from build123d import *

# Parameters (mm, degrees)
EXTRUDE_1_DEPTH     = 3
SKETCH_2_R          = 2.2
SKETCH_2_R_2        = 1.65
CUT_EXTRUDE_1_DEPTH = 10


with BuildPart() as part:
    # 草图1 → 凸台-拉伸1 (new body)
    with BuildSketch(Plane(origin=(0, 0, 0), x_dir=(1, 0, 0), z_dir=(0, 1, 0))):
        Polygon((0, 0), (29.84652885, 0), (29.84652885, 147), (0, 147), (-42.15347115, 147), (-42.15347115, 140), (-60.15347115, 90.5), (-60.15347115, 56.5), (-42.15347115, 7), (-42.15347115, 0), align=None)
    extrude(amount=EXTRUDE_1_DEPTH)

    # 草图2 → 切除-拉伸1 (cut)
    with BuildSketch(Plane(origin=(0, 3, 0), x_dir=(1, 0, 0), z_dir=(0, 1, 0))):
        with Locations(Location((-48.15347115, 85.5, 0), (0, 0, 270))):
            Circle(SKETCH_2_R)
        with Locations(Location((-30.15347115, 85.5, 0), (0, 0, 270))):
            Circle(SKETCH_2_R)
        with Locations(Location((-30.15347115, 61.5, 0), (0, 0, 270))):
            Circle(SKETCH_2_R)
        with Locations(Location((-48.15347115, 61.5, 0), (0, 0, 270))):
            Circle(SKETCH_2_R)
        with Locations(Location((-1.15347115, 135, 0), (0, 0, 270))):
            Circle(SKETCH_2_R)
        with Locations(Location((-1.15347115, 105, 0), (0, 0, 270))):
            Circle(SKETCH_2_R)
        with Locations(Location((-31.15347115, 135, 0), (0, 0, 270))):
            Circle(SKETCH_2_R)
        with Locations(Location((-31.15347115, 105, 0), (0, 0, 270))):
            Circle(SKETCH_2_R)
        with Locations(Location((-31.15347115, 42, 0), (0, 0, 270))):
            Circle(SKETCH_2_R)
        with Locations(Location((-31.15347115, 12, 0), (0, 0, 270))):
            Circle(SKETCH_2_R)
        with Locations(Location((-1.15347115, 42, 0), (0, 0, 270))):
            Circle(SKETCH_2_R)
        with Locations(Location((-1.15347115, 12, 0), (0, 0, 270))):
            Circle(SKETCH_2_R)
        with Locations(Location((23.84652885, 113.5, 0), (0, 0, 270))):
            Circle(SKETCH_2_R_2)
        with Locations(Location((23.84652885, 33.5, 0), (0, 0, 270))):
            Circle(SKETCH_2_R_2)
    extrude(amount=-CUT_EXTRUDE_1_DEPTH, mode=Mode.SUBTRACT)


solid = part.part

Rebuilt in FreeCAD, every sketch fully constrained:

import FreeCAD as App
import Part
import Sketcher
from FreeCAD import Vector


def add_polygon(sketch, points):
    """Adds a closed chain of lines whose ends are joined by coincident constraints."""
    first, n = sketch.GeometryCount, len(points)
    for a, b in zip(points, points[1:] + points[:1]):
        sketch.addGeometry(Part.LineSegment(App.Vector(*a, 0), App.Vector(*b, 0)), False)
    for i in range(n):
        sketch.addConstraint(Sketcher.Constraint("Coincident", first + i, 2, first + (i + 1) % n, 1))

doc = App.newDocument("Part")
body = doc.addObject("PartDesign::Body", "Body")

sketch1 = body.newObject("Sketcher::SketchObject", "Sketch")
sketch1.AttachmentSupport = (doc.getObject("XZ_Plane"), [""])
sketch1.MapMode = "FlatFace"
add_polygon(sketch1, [(30, 0), (30, -147), (-42, -147), (-42, -140), (-60, -90), (-60, -56), (-42, -7), (-42, 0)])
sketch1.addConstraint([
    Sketcher.Constraint("Vertical", 0),
    Sketcher.Constraint("Horizontal", 1),
    Sketcher.Constraint("Vertical", 2),
    Sketcher.Constraint("Vertical", 4),
    Sketcher.Constraint("Vertical", 6),
    Sketcher.Constraint("Horizontal", 7),
    Sketcher.Constraint("PointOnObject", 6, 2, -1),
    Sketcher.Constraint("Vertical", 2, 2, 5, 2),
    Sketcher.Constraint("Equal", 2, 6),
    Sketcher.Constraint("Equal", 3, 5),
    Sketcher.Constraint("DistanceX", 1, 2, 1, 1, 72.0),
    Sketcher.Constraint("DistanceY", 0, 2, 0, 1, 147.0),
    Sketcher.Constraint("DistanceY", 2, 1, 2, 2, 7.0),
    Sketcher.Constraint("DistanceY", 4, 1, 4, 2, 34.0),
    Sketcher.Constraint("DistanceX", 3, 2, 2, 2, 18.0),
    Sketcher.Constraint("DistanceX", -1, 1, 0, 2, 29.846529),
])
pad1 = body.newObject("PartDesign::Pad", "Pad")
pad1.Profile = sketch1
pad1.Length = 3
pad1.Reversed = True

sketch2 = body.newObject("Sketcher::SketchObject", "Sketch001")
sketch2.AttachmentSupport = (doc.getObject("XZ_Plane"), [""])
sketch2.MapMode = "FlatFace"
sketch2.AttachmentOffset = App.Placement(Vector(0, 0, -3), App.Rotation())
sketch2.addGeometry([
    Part.Circle(Vector(-48.2, -85.5, 0), Vector(0, 0, 1), 2.2),
    Part.Circle(Vector(-30.2, -85.5, 0), Vector(0, 0, 1), 2.2),
    Part.Circle(Vector(-30.2, -61.5, 0), Vector(0, 0, 1), 2.2),
    Part.Circle(Vector(-48.2, -61.5, 0), Vector(0, 0, 1), 2.2),
    Part.Circle(Vector(-1.2, -135, 0), Vector(0, 0, 1), 2.2),
    Part.Circle(Vector(-1.2, -105, 0), Vector(0, 0, 1), 2.2),
    Part.Circle(Vector(-31.2, -135, 0), Vector(0, 0, 1), 2.2),
    Part.Circle(Vector(-31.2, -105, 0), Vector(0, 0, 1), 2.2),
    Part.Circle(Vector(-31.2, -42, 0), Vector(0, 0, 1), 2.2),
    Part.Circle(Vector(-31.2, -12, 0), Vector(0, 0, 1), 2.2),
    Part.Circle(Vector(-1.2, -42, 0), Vector(0, 0, 1), 2.2),
    Part.Circle(Vector(-1.2, -12, 0), Vector(0, 0, 1), 2.2),
    Part.Circle(Vector(23.8, -113.5, 0), Vector(0, 0, 1), 1.6),
    Part.Circle(Vector(23.8, -33.5, 0), Vector(0, 0, 1), 1.6),
], False)
sketch2.addConstraint([
    Sketcher.Constraint("Equal", 0, 1),
    Sketcher.Constraint("Equal", 1, 2),
    Sketcher.Constraint("Equal", 2, 3),
    Sketcher.Constraint("Equal", 3, 4),
    Sketcher.Constraint("Equal", 4, 5),
    Sketcher.Constraint("Equal", 5, 6),
    Sketcher.Constraint("Equal", 6, 7),
    Sketcher.Constraint("Equal", 7, 8),
    Sketcher.Constraint("Equal", 8, 9),
    Sketcher.Constraint("Equal", 9, 10),
    Sketcher.Constraint("Equal", 10, 11),
    Sketcher.Constraint("Equal", 12, 13),
    Sketcher.Constraint("Horizontal", 0, 3, 1, 3),
    Sketcher.Constraint("Horizontal", 2, 3, 3, 3),
    Sketcher.Constraint("Horizontal", 4, 3, 6, 3),
    Sketcher.Constraint("Horizontal", 5, 3, 7, 3),
    Sketcher.Constraint("Horizontal", 8, 3, 10, 3),
    Sketcher.Constraint("Horizontal", 9, 3, 11, 3),
    Sketcher.Constraint("Vertical", 1, 3, 2, 3),
    Sketcher.Constraint("Vertical", 0, 3, 3, 3),
    Sketcher.Constraint("Vertical", 4, 3, 5, 3),
    Sketcher.Constraint("Vertical", 6, 3, 7, 3),
    Sketcher.Constraint("Vertical", 7, 3, 8, 3),
    Sketcher.Constraint("Vertical", 8, 3, 9, 3),
    Sketcher.Constraint("Vertical", 5, 3, 10, 3),
    Sketcher.Constraint("Vertical", 10, 3, 11, 3),
    Sketcher.Constraint("Vertical", 12, 3, 13, 3),
    Sketcher.Constraint("Diameter", 0, 4.4),
    Sketcher.Constraint("Diameter", 12, 3.3),
    Sketcher.Constraint("DistanceY", 4, 3, -1, 1, 135.0),
    Sketcher.Constraint("DistanceY", 5, 3, -1, 1, 105.0),
    Sketcher.Constraint("DistanceY", 8, 3, -1, 1, 42.0),
    Sketcher.Constraint("DistanceY", 9, 3, -1, 1, 12.0),
    Sketcher.Constraint("DistanceX", 0, 3, 1, 3, 18.0),
    Sketcher.Constraint("DistanceY", 1, 3, 2, 3, 24.0),
    Sketcher.Constraint("DistanceX", 1, 3, 4, 3, 29.0),
    Sketcher.Constraint("DistanceX", 6, 3, 4, 3, 30.0),
    Sketcher.Constraint("DistanceX", 5, 3, 12, 3, 25.0),
    Sketcher.Constraint("DistanceY", 12, 3, 1, 3, 28.0),
    Sketcher.Constraint("DistanceY", 2, 3, 13, 3, 28.0),
    Sketcher.Constraint("DistanceY", 0, 3, -1, 1, 85.5),
    Sketcher.Constraint("DistanceX", 0, 3, -1, 1, 48.153471),
])
pocket1 = body.newObject("PartDesign::Pocket", "Pocket")
pocket1.Profile = sketch2
pocket1.Length = 10
pocket1.Reversed = True

doc.recompute()
